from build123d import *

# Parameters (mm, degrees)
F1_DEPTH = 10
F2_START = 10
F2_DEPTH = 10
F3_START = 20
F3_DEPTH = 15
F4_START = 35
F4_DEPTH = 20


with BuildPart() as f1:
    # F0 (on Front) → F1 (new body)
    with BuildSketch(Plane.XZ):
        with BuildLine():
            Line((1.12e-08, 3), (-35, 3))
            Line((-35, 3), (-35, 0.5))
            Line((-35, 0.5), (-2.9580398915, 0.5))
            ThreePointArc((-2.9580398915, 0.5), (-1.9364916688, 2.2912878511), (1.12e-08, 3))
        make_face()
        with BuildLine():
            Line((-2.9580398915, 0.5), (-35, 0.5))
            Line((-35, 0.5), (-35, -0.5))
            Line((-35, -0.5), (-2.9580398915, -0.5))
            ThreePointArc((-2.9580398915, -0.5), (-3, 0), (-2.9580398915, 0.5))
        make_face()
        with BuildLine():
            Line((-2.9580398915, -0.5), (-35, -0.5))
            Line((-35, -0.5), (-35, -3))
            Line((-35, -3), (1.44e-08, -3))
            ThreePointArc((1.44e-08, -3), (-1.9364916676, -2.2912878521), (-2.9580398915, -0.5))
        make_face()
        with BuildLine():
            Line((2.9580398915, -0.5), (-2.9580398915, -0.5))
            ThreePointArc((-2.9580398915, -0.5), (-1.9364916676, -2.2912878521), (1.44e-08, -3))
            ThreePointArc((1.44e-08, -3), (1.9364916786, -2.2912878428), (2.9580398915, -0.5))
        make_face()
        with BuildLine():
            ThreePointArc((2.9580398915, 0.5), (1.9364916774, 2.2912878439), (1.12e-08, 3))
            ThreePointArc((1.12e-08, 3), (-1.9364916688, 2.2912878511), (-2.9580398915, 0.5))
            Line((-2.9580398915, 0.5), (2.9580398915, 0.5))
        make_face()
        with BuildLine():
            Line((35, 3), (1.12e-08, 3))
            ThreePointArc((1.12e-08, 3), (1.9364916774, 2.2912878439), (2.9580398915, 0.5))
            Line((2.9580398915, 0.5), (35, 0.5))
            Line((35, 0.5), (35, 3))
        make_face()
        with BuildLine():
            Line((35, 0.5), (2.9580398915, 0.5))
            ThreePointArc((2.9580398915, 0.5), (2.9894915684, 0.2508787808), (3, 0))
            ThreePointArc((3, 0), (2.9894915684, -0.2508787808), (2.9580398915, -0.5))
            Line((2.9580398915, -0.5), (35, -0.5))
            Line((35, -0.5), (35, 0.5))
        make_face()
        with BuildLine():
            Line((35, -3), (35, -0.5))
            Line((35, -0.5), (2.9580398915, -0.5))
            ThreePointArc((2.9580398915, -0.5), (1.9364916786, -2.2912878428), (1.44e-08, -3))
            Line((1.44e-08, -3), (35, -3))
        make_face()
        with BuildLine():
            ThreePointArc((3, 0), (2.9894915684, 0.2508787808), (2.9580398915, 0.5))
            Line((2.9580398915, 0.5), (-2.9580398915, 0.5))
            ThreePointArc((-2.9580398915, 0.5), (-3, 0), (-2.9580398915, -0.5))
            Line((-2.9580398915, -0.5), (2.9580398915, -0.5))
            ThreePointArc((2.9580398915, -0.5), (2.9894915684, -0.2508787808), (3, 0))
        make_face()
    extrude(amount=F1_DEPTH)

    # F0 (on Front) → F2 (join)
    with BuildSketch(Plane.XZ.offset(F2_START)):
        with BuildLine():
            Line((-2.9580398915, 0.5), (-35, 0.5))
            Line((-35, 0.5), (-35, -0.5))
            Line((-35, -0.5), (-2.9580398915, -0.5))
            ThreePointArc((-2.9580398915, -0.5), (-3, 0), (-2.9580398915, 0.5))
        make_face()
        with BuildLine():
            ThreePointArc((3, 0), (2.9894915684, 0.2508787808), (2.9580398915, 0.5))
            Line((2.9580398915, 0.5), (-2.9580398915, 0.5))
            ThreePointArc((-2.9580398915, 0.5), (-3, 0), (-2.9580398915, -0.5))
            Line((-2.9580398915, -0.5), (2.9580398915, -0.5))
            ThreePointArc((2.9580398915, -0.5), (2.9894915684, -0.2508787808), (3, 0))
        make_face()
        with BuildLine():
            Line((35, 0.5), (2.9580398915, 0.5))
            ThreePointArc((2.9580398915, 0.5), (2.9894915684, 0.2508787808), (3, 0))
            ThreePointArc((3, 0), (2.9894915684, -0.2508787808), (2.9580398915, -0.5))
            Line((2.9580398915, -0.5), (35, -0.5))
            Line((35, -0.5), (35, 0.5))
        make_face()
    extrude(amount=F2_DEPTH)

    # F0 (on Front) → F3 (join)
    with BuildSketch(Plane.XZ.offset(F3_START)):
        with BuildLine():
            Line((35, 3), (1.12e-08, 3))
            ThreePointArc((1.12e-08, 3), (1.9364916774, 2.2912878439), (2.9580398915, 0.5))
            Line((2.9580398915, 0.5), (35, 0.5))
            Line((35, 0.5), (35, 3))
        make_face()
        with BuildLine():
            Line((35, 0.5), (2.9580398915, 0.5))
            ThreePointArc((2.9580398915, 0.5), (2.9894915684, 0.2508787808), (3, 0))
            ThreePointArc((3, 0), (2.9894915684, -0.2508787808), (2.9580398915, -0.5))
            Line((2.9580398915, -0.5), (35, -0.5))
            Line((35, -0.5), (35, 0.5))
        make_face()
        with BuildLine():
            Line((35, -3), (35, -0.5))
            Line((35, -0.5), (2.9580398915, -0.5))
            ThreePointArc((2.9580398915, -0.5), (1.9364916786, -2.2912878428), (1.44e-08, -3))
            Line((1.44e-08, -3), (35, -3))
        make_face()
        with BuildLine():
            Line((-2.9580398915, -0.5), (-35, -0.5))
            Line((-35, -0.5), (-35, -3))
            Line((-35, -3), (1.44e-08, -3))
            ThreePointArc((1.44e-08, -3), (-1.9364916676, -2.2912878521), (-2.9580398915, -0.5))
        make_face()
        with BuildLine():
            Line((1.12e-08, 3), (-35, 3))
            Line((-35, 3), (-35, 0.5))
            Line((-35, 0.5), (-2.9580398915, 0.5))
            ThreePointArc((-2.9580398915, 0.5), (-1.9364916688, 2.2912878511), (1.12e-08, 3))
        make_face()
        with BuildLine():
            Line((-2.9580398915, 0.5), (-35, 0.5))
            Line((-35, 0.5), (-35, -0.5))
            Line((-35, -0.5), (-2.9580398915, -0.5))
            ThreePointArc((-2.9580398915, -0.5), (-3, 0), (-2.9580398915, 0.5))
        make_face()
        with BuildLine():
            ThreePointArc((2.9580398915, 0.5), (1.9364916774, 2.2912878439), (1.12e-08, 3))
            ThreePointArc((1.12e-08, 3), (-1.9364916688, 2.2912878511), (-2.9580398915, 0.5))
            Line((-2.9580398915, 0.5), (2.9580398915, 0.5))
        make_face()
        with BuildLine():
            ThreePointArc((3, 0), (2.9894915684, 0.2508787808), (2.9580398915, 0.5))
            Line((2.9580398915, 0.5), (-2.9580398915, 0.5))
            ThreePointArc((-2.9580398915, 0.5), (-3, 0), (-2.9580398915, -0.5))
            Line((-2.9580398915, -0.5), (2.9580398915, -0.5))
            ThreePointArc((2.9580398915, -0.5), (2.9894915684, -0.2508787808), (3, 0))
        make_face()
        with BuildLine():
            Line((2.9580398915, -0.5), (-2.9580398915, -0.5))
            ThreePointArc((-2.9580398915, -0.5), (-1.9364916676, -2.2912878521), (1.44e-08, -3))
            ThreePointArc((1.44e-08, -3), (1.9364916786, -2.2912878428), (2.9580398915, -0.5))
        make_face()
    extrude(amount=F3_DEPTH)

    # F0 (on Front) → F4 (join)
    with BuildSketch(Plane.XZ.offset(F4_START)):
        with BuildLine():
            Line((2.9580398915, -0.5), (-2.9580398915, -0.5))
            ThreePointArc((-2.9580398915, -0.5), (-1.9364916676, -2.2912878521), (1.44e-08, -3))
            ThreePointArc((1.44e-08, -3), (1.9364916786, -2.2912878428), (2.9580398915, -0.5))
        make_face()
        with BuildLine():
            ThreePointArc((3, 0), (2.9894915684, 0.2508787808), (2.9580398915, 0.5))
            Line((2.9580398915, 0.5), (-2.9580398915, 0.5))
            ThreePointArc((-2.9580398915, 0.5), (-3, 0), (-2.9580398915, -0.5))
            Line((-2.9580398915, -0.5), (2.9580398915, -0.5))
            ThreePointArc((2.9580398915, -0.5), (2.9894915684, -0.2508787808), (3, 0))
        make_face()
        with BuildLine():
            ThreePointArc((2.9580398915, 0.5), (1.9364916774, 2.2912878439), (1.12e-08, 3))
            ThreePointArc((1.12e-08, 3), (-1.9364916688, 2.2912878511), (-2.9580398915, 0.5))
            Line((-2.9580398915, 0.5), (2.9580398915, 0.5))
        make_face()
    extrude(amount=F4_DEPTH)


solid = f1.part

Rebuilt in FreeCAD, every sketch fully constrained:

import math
import FreeCAD as App
import Part
import Sketcher

V = App.Vector
Q = App.Units.Quantity

doc = App.newDocument("Part")
body = doc.addObject("PartDesign::Body", "Body")

# Sketch on XZ plane
sketch1 = body.newObject("Sketcher::SketchObject", "Sketch")
sketch1.AttachmentSupport = (doc.getObject("XZ_Plane"), [""])
sketch1.MapMode = "FlatFace"
sketch1.addGeometry([
    Part.LineSegment(V(-35, -3, 0), V(35, -3, 0)),
    Part.LineSegment(V(35, -3, 0), V(35, 3, 0)),
    Part.LineSegment(V(35, 3, 0), V(-35, 3, 0)),
    Part.LineSegment(V(-35, 3, 0), V(-35, -3, 0)),
], False)
sketch1.addConstraint([
    Sketcher.Constraint("Coincident", 0, 2, 1, 1),
    Sketcher.Constraint("Coincident", 1, 2, 2, 1),
    Sketcher.Constraint("Coincident", 2, 2, 3, 1),
    Sketcher.Constraint("Coincident", 3, 2, 0, 1),
    Sketcher.Constraint("Horizontal", 0),
    Sketcher.Constraint("Vertical", 1),
    Sketcher.Constraint("Horizontal", 2),
    Sketcher.Constraint("Vertical", 3),
    Sketcher.Constraint("Symmetric", 0, 2, 2, 2, -1, 1),
    Sketcher.Constraint("DistanceX", 0, 1, 0, 2, Q("70 mm")),
    Sketcher.Constraint("DistanceY", 1, 1, 1, 2, Q("6 mm")),
])
pad1 = body.newObject("PartDesign::Pad", "Pad")
pad1.Profile = sketch1
pad1.Length = 10

# Sketch on XZ plane
sketch2 = body.newObject("Sketcher::SketchObject", "Sketch001")
sketch2.AttachmentSupport = (doc.getObject("XZ_Plane"), [""])
sketch2.MapMode = "FlatFace"
sketch2.AttachmentOffset = App.Placement(V(0, 0, 10), App.Rotation())
sketch2.addGeometry([
    Part.LineSegment(V(-35, 0.5, 0), V(-35, -0.5, 0)),
    Part.LineSegment(V(-35, -0.5, 0), V(35, -0.5, 0)),
    Part.LineSegment(V(35, -0.5, 0), V(35, 0.5, 0)),
    Part.LineSegment(V(35, 0.5, 0), V(-35, 0.5, 0)),
], False)
sketch2.addConstraint([
    Sketcher.Constraint("Coincident", 0, 2, 1, 1),
    Sketcher.Constraint("Coincident", 1, 2, 2, 1),
    Sketcher.Constraint("Coincident", 2, 2, 3, 1),
    Sketcher.Constraint("Coincident", 3, 2, 0, 1),
    Sketcher.Constraint("Vertical", 0),
    Sketcher.Constraint("Horizontal", 1),
    Sketcher.Constraint("Vertical", 2),
    Sketcher.Constraint("Horizontal", 3),
    Sketcher.Constraint("Symmetric", 0, 2, 2, 2, -1, 1),
    Sketcher.Constraint("DistanceX", 1, 1, 1, 2, Q("70 mm")),
    Sketcher.Constraint("DistanceY", 0, 2, 0, 1, Q("1 mm")),
])
pad2 = body.newObject("PartDesign::Pad", "Pad001")
pad2.Profile = sketch2
pad2.Length = 10

# Sketch on XZ plane
sketch3 = body.newObject("Sketcher::SketchObject", "Sketch002")
sketch3.AttachmentSupport = (doc.getObject("XZ_Plane"), [""])
sketch3.MapMode = "FlatFace"
sketch3.AttachmentOffset = App.Placement(V(0, 0, 20), App.Rotation())
sketch3.addGeometry([
    Part.LineSegment(V(-35, -3, 0), V(35, -3, 0)),
    Part.LineSegment(V(35, -3, 0), V(35, 3, 0)),
    Part.LineSegment(V(35, 3, 0), V(-35, 3, 0)),
    Part.LineSegment(V(-35, 3, 0), V(-35, -3, 0)),
], False)
sketch3.addConstraint([
    Sketcher.Constraint("Coincident", 0, 2, 1, 1),
    Sketcher.Constraint("Coincident", 1, 2, 2, 1),
    Sketcher.Constraint("Coincident", 2, 2, 3, 1),
    Sketcher.Constraint("Coincident", 3, 2, 0, 1),
    Sketcher.Constraint("Horizontal", 0),
    Sketcher.Constraint("Vertical", 1),
    Sketcher.Constraint("Horizontal", 2),
    Sketcher.Constraint("Vertical", 3),
    Sketcher.Constraint("Symmetric", 0, 2, 2, 2, -1, 1),
    Sketcher.Constraint("DistanceX", 0, 1, 0, 2, Q("70 mm")),
    Sketcher.Constraint("DistanceY", 1, 1, 1, 2, Q("6 mm")),
])
pad3 = body.newObject("PartDesign::Pad", "Pad002")
pad3.Profile = sketch3
pad3.Length = 15

# Sketch on XZ plane
sketch4 = body.newObject("Sketcher::SketchObject", "Sketch003")
sketch4.AttachmentSupport = (doc.getObject("XZ_Plane"), [""])
sketch4.MapMode = "FlatFace"
sketch4.AttachmentOffset = App.Placement(V(0, 0, 35), App.Rotation())
sketch4.addGeometry([
    Part.ArcOfCircle(Part.Circle(V(0, 0, 0), V(0, 0, 1), 3), math.radians(-170), math.radians(-90)),  # 0
    Part.ArcOfCircle(Part.Circle(V(0, 0, 0), V(0, 0, 1), 3), math.radians(-90), math.radians(-10)),  # 1
    Part.ArcOfCircle(Part.Circle(V(0, 0, 0), V(0, 0, 1), 3), math.radians(-9.59), math.radians(0)),  # 2
    Part.ArcOfCircle(Part.Circle(V(0, 0, 0), V(0, 0, 1), 3), math.radians(0), math.radians(9.59)),  # 3
    Part.ArcOfCircle(Part.Circle(V(0, 0, 0), V(0, 0, 1), 3), math.radians(10), math.radians(90)),  # 4
    Part.ArcOfCircle(Part.Circle(V(0, 0, 0), V(0, 0, 1), 3), math.radians(90), math.radians(170)),  # 5
    Part.ArcOfCircle(Part.Circle(V(0, 0, 0), V(0, 0, 1), 3), math.radians(170.41), math.radians(189.59)),  # 6
], False)
sketch4.addConstraint([
    Sketcher.Constraint("Tangent", 0, 2, 1, 1),
    Sketcher.Constraint("Tangent", 1, 2, 2, 1),
    Sketcher.Constraint("Tangent", 2, 2, 3, 1),
    Sketcher.Constraint("Tangent", 3, 2, 4, 1),
    Sketcher.Constraint("Tangent", 4, 2, 5, 1),
    Sketcher.Constraint("Tangent", 5, 2, 6, 1),
    Sketcher.Constraint("Tangent", 6, 2, 0, 1),
    Sketcher.Constraint("Coincident", 0, 3, -1, 1),
    Sketcher.Constraint("Coincident", 2, 3, -1, 1),
    Sketcher.Constraint("Coincident", 4, 3, -1, 1),
    Sketcher.Constraint("PointOnObject", 0, 2, -2),
    Sketcher.Constraint("PointOnObject", 2, 2, -1),
    Sketcher.Constraint("PointOnObject", 4, 2, -2),
    Sketcher.Constraint("Horizontal", 3, 2, 5, 2),
    Sketcher.Constraint("Horizontal", 1, 2, 6, 2),
    Sketcher.Constraint("Vertical", 1, 2, 3, 2),
    Sketcher.Constraint("Radius", 0, Q("3 mm")),
    Sketcher.Constraint("DistanceY", 1, 2, 3, 2, Q("1 mm")),
])
pad4 = body.newObject("PartDesign::Pad", "Pad003")
pad4.Profile = sketch4
pad4.Length = 20

doc.recompute()
